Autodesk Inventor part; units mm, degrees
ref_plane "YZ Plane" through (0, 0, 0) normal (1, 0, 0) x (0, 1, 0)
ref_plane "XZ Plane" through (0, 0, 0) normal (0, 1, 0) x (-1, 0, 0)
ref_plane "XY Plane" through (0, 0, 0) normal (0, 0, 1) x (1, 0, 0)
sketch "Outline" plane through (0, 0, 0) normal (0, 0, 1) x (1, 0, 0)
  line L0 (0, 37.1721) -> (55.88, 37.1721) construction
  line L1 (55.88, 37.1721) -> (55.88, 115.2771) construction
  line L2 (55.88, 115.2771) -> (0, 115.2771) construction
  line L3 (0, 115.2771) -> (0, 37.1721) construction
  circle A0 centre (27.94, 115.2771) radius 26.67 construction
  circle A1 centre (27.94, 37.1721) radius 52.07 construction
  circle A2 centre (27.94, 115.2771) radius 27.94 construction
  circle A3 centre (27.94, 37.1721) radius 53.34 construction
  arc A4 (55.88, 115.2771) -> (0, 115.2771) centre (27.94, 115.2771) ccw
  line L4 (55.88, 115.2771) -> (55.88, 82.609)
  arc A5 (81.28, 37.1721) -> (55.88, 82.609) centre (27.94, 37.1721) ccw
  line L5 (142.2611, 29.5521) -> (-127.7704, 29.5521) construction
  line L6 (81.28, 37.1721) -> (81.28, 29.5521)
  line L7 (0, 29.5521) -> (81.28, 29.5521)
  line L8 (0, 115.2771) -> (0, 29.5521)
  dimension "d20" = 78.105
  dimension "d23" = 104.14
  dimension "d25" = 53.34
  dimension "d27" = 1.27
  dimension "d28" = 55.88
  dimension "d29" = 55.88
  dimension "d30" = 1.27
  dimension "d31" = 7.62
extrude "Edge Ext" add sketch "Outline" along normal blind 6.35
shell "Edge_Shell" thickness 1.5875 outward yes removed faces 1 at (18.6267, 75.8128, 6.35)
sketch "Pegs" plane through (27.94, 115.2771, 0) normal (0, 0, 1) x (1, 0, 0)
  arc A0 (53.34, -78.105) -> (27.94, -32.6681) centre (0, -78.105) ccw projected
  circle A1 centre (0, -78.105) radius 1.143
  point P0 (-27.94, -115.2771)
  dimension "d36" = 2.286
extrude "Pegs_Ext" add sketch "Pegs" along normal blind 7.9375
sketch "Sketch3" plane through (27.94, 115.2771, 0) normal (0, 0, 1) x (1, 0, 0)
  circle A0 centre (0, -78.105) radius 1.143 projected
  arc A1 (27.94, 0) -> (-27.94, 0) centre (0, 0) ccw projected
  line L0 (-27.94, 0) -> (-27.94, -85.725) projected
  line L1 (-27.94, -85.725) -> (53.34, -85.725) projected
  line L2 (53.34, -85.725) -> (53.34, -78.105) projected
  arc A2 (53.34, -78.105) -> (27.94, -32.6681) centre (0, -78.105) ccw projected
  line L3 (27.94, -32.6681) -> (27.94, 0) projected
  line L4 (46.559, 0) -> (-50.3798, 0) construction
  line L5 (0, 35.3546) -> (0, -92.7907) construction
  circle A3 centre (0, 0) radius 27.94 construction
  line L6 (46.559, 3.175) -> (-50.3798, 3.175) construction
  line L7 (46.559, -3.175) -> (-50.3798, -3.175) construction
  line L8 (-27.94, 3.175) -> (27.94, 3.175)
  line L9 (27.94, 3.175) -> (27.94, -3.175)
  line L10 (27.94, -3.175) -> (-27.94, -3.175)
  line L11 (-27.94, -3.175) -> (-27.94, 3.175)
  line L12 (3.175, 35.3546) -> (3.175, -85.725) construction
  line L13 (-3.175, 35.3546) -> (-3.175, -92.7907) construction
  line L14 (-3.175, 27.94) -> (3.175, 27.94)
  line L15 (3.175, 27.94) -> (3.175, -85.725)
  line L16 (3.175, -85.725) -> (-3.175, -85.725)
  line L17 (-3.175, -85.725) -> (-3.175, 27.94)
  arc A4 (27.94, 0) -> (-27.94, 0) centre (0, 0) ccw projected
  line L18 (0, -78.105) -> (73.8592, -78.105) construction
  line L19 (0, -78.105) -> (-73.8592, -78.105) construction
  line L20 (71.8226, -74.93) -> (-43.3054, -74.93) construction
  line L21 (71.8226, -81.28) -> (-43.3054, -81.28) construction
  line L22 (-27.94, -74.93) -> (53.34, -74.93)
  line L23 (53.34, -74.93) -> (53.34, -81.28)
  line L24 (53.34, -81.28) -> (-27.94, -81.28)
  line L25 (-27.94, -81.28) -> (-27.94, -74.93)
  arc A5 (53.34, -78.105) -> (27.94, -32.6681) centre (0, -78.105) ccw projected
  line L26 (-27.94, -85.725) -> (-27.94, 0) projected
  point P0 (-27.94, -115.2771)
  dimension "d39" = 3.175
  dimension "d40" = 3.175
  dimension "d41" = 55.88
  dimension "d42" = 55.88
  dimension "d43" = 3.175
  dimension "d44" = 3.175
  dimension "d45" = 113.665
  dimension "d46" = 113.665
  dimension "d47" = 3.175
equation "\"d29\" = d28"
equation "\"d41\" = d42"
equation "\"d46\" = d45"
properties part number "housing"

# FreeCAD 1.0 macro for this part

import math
import FreeCAD as App
import Part
import Sketcher
Q = App.Units.Quantity


def faces_at(feature, points):
    """Names of the faces that lie closest to the given points."""
    faces = feature.Shape.Faces
    near = lambda p: min(range(len(faces)), key=lambda i: faces[i].distToShape(Part.Vertex(*p))[0])
    return sorted({f"Face{near(p) + 1}" for p in points})

doc = App.newDocument("Part")
body = doc.addObject("PartDesign::Body", "Body")

sketch1 = body.newObject("Sketcher::SketchObject", "Sketch")
sketch1.AttachmentSupport = (doc.getObject("XY_Plane"), [""])
sketch1.MapMode = "FlatFace"
sketch1.addGeometry([
    Part.LineSegment(App.Vector(56, 83, 0), App.Vector(56, 115, 0)),
    Part.ArcOfCircle(Part.Circle(App.Vector(28, 115, 0), App.Vector(0, 0, 1), 28), math.radians(0), math.radians(180)),
    Part.LineSegment(App.Vector(0, 115, 0), App.Vector(0, 30, 0)),
    Part.LineSegment(App.Vector(0, 30, 0), App.Vector(81, 30, 0)),
    Part.LineSegment(App.Vector(81, 30, 0), App.Vector(81, 37, 0)),
    Part.ArcOfCircle(Part.Circle(App.Vector(28, 37, 0), App.Vector(0, 0, 1), 53), math.radians(0), math.radians(58)),
], False)
sketch1.addConstraint([
    Sketcher.Constraint("Tangent", 0, 2, 1, 1),
    Sketcher.Constraint("Tangent", 1, 2, 2, 1),
    Sketcher.Constraint("Coincident", 2, 2, 3, 1),
    Sketcher.Constraint("Coincident", 3, 2, 4, 1),
    Sketcher.Constraint("Tangent", 4, 2, 5, 1),
    Sketcher.Constraint("Coincident", 5, 2, 0, 1),
    Sketcher.Constraint("Vertical", 0),
    Sketcher.Constraint("Vertical", 2),
    Sketcher.Constraint("Horizontal", 3),
    Sketcher.Constraint("Vertical", 4),
    Sketcher.Constraint("PointOnObject", 1, 2, -2),
    Sketcher.Constraint("Vertical", 1, 3, 5, 3),
    Sketcher.Constraint("Radius", 1, Q("1.1 in")),
    Sketcher.Constraint("Radius", 5, Q("2.1 in")),
    Sketcher.Constraint("DistanceY", 4, 1, 4, 2, Q("0.3 in")),
    Sketcher.Constraint("DistanceY", 5, 3, 1, 3, Q("3.075 in")),
    Sketcher.Constraint("DistanceY", -1, 1, 1, 3, Q("115.277 mm")),
])
pad1 = body.newObject("PartDesign::Pad", "Pad")
pad1.Profile = sketch1
pad1.Length = Q("0.25 in")
doc.recompute()

thickness = body.newObject("PartDesign::Thickness", "Thickness")
thickness.Base = (pad1, faces_at(pad1, [(18.627, 75.813, 6.35)]))
thickness.Value = Q("0.0625 in")
thickness.Reversed = False
thickness.Join = "Intersection"

sketch2 = body.newObject("Sketcher::SketchObject", "Sketch001")
sketch2.AttachmentSupport = (doc.getObject("XY_Plane"), [""])
sketch2.MapMode = "FlatFace"
sketch2.addGeometry(Part.Circle(App.Vector(27.9, 37.2, 0), App.Vector(0, 0, 1), 1.1), False)
sketch2.addConstraint([
    Sketcher.Constraint("Diameter", 0, Q("0.09 in")),
    Sketcher.Constraint("DistanceX", -1, 1, 0, 3, Q("1.1 in")),
    Sketcher.Constraint("DistanceY", -1, 1, 0, 3, Q("37.172 mm")),
])
pad2 = body.newObject("PartDesign::Pad", "Pad001")
pad2.Profile = sketch2
pad2.Length = Q("0.3125 in")

doc.recompute()
